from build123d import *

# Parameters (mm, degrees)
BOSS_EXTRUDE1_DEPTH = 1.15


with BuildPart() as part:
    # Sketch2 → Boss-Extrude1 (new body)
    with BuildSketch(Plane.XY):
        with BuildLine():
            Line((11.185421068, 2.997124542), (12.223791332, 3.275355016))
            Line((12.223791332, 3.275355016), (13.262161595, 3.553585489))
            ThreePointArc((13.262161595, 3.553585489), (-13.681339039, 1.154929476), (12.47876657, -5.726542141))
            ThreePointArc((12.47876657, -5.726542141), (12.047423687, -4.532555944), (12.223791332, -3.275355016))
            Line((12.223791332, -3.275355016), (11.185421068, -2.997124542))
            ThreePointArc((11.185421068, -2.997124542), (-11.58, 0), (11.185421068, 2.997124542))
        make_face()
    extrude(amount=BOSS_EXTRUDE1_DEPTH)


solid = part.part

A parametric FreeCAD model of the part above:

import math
import FreeCAD as App
import Part
import Sketcher
from FreeCAD import Vector
Q = App.Units.Quantity

doc = App.newDocument("Part")
body = doc.addObject("PartDesign::Body", "Body")

sketch1 = body.newObject("Sketcher::SketchObject", "Sketch")
sketch1.AttachmentSupport = (doc.getObject("XY_Plane"), [""])
sketch1.MapMode = "FlatFace"
sketch1.addGeometry(Part.LineSegment(Vector(11.185421, 2.997125, 0), Vector(12.223791, 3.275355, 0)), False)
sketch1.addGeometry(Part.LineSegment(Vector(12.223791, 3.275355, 0), Vector(13.262162, 3.553585, 0)), False)
sketch1.addGeometry(Part.ArcOfCircle(Part.Circle(Vector(0, 0, 0), Vector(0, 0, 1), 13.73), math.radians(15), math.radians(335.349473)), False)
sketch1.addGeometry(Part.ArcOfCircle(Part.Circle(Vector(14.671054, -4.259643, 0), Vector(0, 0, 1), 2.637786), math.radians(158.090028), math.radians(213.787199)), False)
sketch1.addGeometry(Part.LineSegment(Vector(12.223791, -3.275355, 0), Vector(11.185421, -2.997125, 0)), False)
sketch1.addGeometry(Part.ArcOfCircle(Part.Circle(Vector(0, 0, 0), Vector(0, 0, 1), 11.58), math.radians(15), math.radians(345)), False)
sketch1.addConstraint(Sketcher.Constraint("Coincident", 0, 2, 1, 1))
sketch1.addConstraint(Sketcher.Constraint("Coincident", 1, 2, 2, 1))
sketch1.addConstraint(Sketcher.Constraint("Coincident", 2, 2, 3, 2))
sketch1.addConstraint(Sketcher.Constraint("Coincident", 3, 1, 4, 1))
sketch1.addConstraint(Sketcher.Constraint("Coincident", 4, 2, 5, 2))
sketch1.addConstraint(Sketcher.Constraint("Coincident", 5, 1, 0, 1))
sketch1.addConstraint(Sketcher.Constraint("Coincident", 2, 3, -1, 1))
sketch1.addConstraint(Sketcher.Constraint("Coincident", 5, 3, -1, 1))
sketch1.addConstraint(Sketcher.Constraint("Symmetric", 0, 2, 3, 1, -1))
sketch1.addConstraint(Sketcher.Constraint("Parallel", 0, 1))
sketch1.addConstraint(Sketcher.Constraint("Vertical", 4, 2, 5, 1))
sketch1.addConstraint(Sketcher.Constraint("Equal", 0, 1))
sketch1.addConstraint(Sketcher.Constraint("Angle", 0, Q("15 deg")))
sketch1.addConstraint(Sketcher.Constraint("Radius", 2, Q("13.73 mm")))
sketch1.addConstraint(Sketcher.Constraint("Radius", 5, Q("11.58 mm")))
sketch1.addConstraint(Sketcher.Constraint("Radius", 3, Q("2.637786 mm")))
sketch1.addConstraint(Sketcher.Constraint("DistanceY", 3, 3, 0, 2, Q("7.534998 mm")))
sketch1.addConstraint(Sketcher.Constraint("DistanceX", -1, 1, 0, 2, Q("12.223791 mm")))
pad1 = body.newObject("PartDesign::Pad", "Pad")
pad1.Profile = sketch1
pad1.Length = 1.15

doc.recompute()
